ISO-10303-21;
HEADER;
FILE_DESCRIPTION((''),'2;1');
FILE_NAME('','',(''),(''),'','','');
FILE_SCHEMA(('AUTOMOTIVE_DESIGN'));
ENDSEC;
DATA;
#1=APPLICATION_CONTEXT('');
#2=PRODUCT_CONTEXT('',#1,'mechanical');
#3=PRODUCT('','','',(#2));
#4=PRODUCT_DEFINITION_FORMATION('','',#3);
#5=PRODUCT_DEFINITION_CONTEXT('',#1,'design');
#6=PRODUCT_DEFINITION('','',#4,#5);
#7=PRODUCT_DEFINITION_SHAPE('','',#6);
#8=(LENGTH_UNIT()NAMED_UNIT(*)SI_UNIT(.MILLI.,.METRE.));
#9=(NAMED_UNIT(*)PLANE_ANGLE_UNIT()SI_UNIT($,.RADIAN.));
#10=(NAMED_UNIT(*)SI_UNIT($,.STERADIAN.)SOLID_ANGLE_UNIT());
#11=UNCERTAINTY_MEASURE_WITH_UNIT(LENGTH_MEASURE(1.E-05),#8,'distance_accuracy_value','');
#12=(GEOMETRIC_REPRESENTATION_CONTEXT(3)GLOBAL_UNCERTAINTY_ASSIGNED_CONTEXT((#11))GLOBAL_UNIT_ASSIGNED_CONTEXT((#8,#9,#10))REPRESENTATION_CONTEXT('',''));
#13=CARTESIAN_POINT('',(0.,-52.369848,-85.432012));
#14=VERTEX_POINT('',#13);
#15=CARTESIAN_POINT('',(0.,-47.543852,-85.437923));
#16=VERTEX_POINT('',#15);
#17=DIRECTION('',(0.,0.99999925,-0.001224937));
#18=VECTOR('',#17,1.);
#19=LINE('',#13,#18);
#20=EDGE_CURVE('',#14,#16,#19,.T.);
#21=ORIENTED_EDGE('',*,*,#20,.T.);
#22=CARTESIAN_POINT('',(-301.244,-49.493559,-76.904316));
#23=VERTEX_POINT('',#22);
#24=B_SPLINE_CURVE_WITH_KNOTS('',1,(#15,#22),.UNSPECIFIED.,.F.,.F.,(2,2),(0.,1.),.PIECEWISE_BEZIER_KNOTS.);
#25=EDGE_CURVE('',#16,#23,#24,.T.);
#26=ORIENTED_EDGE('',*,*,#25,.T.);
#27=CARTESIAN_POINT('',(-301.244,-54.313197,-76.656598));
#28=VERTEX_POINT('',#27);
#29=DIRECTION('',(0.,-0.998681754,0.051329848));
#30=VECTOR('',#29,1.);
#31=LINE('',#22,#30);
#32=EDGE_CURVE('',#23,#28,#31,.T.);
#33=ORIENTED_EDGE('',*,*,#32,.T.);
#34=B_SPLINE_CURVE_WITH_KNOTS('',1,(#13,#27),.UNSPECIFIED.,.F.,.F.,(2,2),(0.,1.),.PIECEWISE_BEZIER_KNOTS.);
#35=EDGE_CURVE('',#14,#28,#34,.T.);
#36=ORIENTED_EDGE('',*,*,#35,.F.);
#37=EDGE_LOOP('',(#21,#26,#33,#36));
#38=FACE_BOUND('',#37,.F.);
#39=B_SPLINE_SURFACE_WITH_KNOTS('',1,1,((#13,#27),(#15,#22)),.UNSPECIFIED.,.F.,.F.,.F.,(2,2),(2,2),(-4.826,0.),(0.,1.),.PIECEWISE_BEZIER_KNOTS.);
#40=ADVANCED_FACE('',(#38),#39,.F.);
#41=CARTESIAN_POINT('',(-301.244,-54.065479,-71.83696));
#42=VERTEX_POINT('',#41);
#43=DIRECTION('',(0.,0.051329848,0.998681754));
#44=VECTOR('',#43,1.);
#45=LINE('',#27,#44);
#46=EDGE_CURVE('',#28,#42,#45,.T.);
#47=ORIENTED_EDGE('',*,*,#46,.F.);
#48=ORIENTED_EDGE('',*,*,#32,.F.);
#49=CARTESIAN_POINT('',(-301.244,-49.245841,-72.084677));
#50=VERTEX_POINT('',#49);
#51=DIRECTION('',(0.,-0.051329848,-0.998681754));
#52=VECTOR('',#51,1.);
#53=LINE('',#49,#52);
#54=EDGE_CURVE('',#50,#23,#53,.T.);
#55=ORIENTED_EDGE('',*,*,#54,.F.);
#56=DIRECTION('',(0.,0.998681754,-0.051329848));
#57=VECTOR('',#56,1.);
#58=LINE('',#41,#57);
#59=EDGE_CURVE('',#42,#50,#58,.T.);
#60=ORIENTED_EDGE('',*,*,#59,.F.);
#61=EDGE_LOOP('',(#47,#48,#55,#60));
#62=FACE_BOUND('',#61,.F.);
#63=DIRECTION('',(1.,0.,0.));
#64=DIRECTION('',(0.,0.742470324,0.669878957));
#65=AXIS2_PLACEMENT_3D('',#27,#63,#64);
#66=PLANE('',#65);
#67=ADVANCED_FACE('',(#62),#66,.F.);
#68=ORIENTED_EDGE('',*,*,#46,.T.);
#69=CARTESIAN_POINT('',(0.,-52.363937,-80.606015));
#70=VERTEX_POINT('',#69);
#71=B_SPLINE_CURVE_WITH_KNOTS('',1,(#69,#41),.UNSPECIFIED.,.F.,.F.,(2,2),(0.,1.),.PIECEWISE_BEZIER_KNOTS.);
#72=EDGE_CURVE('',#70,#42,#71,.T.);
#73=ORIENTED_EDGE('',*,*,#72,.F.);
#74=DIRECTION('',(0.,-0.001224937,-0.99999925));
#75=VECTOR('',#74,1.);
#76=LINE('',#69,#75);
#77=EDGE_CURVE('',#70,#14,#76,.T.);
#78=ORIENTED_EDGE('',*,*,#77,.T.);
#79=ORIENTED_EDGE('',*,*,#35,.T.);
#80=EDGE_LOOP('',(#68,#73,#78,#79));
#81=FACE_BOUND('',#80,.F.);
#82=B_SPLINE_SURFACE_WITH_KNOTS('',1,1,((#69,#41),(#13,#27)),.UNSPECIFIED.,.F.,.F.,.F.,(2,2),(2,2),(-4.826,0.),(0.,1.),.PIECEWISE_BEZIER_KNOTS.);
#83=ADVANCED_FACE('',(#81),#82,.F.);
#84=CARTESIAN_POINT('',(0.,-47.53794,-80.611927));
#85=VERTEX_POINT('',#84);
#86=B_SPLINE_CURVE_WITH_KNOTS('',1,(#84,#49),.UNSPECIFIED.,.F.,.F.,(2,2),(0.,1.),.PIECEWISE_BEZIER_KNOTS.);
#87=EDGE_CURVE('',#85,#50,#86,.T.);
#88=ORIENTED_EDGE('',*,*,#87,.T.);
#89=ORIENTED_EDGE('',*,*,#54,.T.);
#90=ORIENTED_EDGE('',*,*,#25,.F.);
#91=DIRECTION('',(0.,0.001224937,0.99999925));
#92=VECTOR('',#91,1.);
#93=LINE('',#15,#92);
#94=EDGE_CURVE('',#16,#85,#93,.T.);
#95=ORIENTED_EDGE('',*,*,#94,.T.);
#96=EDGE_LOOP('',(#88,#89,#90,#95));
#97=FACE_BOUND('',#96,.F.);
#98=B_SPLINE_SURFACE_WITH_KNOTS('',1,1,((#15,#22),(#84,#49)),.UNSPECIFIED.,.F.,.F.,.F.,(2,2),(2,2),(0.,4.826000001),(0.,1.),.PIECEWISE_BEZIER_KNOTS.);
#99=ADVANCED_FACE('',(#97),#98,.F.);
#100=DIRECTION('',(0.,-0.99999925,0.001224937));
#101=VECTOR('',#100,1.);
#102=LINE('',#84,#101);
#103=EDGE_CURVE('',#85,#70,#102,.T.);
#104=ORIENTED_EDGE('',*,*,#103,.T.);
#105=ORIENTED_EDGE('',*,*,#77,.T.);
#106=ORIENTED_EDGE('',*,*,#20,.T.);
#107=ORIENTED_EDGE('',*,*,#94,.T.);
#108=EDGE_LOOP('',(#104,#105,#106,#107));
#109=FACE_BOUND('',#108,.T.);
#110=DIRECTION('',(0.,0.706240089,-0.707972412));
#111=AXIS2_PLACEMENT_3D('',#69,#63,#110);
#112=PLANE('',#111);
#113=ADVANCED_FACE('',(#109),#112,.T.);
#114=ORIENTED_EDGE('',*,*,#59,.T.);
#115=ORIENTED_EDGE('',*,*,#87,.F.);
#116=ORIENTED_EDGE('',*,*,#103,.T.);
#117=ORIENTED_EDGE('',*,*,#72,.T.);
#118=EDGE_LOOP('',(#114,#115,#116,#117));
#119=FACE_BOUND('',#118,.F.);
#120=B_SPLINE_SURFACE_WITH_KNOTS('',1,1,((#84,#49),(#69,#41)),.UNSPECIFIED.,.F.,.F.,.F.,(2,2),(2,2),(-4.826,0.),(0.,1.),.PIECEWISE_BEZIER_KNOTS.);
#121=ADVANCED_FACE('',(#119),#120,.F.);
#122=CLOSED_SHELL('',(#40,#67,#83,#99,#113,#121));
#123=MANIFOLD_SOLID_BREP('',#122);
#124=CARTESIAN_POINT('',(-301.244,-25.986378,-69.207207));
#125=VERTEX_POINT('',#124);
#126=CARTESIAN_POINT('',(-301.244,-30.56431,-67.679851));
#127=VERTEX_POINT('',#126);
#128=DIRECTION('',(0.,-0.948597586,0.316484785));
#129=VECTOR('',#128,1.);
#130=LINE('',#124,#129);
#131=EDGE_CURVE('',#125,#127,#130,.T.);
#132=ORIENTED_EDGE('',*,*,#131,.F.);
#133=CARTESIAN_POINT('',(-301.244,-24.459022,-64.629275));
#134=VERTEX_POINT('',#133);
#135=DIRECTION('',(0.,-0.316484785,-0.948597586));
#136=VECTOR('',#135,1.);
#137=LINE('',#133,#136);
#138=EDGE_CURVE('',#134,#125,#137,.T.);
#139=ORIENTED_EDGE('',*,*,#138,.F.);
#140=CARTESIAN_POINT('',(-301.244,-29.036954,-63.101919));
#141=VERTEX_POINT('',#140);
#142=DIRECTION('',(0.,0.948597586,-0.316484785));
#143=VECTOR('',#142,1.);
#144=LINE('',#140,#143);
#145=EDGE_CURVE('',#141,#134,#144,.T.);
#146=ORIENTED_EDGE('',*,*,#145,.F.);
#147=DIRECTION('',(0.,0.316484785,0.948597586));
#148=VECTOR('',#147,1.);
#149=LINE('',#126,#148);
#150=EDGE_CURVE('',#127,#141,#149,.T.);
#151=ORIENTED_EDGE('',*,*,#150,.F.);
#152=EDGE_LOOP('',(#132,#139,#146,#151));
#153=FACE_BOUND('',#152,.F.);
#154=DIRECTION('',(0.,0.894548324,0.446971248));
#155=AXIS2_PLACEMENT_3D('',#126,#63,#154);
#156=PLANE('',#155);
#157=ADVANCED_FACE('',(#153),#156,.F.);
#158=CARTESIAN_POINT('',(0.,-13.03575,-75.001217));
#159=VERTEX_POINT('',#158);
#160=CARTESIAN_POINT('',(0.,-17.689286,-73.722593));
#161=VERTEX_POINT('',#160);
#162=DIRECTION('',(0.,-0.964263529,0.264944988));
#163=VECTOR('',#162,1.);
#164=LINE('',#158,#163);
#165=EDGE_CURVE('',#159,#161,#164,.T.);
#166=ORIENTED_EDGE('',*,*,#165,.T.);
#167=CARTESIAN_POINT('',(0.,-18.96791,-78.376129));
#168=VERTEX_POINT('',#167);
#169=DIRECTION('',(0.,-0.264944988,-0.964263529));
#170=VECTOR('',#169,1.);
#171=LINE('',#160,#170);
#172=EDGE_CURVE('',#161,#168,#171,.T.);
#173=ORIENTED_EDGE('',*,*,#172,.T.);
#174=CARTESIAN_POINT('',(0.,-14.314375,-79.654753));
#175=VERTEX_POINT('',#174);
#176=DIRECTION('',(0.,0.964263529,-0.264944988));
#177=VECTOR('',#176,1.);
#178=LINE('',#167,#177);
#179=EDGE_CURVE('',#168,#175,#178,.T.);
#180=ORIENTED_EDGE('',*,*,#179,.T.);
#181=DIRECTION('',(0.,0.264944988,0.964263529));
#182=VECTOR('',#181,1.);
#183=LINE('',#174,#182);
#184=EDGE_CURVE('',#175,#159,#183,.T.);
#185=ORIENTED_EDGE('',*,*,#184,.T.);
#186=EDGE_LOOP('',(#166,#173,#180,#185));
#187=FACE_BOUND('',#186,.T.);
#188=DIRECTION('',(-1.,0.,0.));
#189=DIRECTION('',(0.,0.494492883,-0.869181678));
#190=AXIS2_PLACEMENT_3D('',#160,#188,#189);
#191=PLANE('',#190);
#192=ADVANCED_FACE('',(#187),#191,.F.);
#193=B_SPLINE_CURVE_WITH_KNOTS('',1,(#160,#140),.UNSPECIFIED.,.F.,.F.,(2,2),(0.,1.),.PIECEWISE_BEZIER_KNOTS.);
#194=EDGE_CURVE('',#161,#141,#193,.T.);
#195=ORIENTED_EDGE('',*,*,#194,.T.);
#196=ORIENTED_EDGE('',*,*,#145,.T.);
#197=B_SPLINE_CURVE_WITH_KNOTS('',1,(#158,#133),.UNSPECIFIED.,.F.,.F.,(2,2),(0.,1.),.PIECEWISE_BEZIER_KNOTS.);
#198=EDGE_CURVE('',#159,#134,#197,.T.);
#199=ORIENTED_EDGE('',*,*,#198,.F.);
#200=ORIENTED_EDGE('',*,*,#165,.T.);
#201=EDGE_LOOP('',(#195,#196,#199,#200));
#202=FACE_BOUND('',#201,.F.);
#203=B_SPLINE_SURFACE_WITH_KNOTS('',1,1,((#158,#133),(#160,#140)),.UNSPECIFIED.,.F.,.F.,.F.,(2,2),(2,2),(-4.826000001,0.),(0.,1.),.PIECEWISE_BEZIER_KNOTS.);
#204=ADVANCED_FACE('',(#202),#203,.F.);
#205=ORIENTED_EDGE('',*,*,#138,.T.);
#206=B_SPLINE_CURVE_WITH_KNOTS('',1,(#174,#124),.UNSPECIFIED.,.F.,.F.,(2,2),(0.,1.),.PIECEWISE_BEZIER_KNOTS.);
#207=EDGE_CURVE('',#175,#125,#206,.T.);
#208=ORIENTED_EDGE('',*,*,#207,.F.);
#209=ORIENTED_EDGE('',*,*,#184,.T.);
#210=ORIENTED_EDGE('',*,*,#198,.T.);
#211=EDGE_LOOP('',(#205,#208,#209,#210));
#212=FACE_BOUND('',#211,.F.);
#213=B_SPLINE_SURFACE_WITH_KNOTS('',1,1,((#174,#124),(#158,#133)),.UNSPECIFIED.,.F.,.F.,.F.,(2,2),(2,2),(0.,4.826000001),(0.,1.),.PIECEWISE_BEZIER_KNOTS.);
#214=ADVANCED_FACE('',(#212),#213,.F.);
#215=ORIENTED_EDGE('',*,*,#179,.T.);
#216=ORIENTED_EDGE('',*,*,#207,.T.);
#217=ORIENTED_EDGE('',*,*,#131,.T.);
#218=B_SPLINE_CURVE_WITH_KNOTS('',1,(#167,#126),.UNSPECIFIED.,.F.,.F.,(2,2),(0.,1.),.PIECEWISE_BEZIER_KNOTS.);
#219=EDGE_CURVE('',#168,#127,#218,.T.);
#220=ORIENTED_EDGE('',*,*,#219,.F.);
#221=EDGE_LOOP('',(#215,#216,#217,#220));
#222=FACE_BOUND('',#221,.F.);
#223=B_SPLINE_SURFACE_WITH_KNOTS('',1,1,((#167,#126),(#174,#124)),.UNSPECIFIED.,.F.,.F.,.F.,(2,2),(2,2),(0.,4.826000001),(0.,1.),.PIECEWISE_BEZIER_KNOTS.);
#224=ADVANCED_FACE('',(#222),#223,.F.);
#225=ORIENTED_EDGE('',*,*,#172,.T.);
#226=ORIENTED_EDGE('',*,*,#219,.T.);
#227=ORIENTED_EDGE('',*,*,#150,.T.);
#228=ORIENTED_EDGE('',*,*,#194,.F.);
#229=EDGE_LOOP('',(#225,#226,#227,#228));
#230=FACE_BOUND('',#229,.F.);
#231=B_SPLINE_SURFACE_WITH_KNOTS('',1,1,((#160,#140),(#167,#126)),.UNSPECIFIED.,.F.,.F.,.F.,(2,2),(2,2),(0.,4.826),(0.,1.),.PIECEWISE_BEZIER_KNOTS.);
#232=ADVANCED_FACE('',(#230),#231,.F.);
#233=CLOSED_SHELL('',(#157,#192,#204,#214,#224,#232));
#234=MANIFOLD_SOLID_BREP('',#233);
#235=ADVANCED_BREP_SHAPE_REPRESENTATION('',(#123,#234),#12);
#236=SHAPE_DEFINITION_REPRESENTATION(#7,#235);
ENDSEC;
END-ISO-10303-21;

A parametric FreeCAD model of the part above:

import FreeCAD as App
import Part
import Sketcher
Q = App.Units.Quantity


def add_polygon(sketch, points):
    """Adds a closed chain of lines whose ends are joined by coincident constraints."""
    first, n = sketch.GeometryCount, len(points)
    for a, b in zip(points, points[1:] + points[:1]):
        sketch.addGeometry(Part.LineSegment(App.Vector(*a, 0), App.Vector(*b, 0)), False)
    for i in range(n):
        sketch.addConstraint(Sketcher.Constraint("Coincident", first + i, 2, first + (i + 1) % n, 1))

doc = App.newDocument("Part")
body = doc.addObject("PartDesign::Body", "Body")

# Sketch on YZ plane
sketch1 = doc.addObject("Sketcher::SketchObject", "Sketch")
body.addObject(sketch1)
sketch1.AttachmentSupport = (doc.YZ_Plane, [""])
sketch1.MapMode = "FlatFace"
add_polygon(sketch1, [(-17.7, -73.7), (-19, -78.4), (-14.3, -79.7), (-13, -75)])  # lines 0-3
sketch1.addConstraint([
    Sketcher.Constraint("Perpendicular", 0, 1),
    Sketcher.Constraint("Perpendicular", 1, 2),
    Sketcher.Constraint("Perpendicular", 2, 3),
    Sketcher.Constraint("Equal", 0, 1),
    Sketcher.Constraint("Distance", 0, Q("0.19 in")),
    Sketcher.Constraint("DistanceX", 0, 2, -1, 1, Q("18.96791 mm")),
    Sketcher.Constraint("DistanceY", 0, 2, -1, 1, Q("78.376129 mm")),
    Sketcher.Constraint("DistanceX", 2, 2, -1, 1, Q("13.03575 mm")),
])

# Sketch on YZ plane
sketch2 = doc.addObject("Sketcher::SketchObject", "Sketch001")
body.addObject(sketch2)
sketch2.AttachmentSupport = (doc.YZ_Plane, [""])
sketch2.MapMode = "FlatFace"
sketch2.AttachmentOffset = App.Placement(App.Vector(0, 0, -11.86 * 25.4), App.Rotation())
add_polygon(sketch2, [(-29, -63.1), (-30.6, -67.7), (-26, -69.2), (-24.5, -64.6)])  # lines 0-3
sketch2.addConstraint([
    Sketcher.Constraint("Perpendicular", 0, 1),
    Sketcher.Constraint("Perpendicular", 1, 2),
    Sketcher.Constraint("Perpendicular", 2, 3),
    Sketcher.Constraint("Equal", 0, 1),
    Sketcher.Constraint("Distance", 0, Q("0.19 in")),
    Sketcher.Constraint("DistanceX", 0, 2, -1, 1, Q("30.56431 mm")),
    Sketcher.Constraint("DistanceY", 0, 2, -1, 1, Q("67.679851 mm")),
    Sketcher.Constraint("DistanceY", 3, 2, -1, 1, Q("63.101919 mm")),
])

additiveloft = doc.addObject("PartDesign::AdditiveLoft", "AdditiveLoft")
body.addObject(additiveloft)
additiveloft.Profile = sketch1
additiveloft.Sections = [sketch2]
body2 = doc.addObject("PartDesign::Body", "Body001")

# Sketch on YZ plane
sketch3 = doc.addObject("Sketcher::SketchObject", "Sketch002")
body2.addObject(sketch3)
sketch3.AttachmentSupport = (doc.getObject("YZ_Plane001"), [""])
sketch3.MapMode = "FlatFace"
add_polygon(sketch3, [(-52.4, -80.6), (-52.4, -85.4), (-47.5, -85.4), (-47.5, -80.6)])  # lines 0-3
sketch3.addConstraint([
    Sketcher.Constraint("Perpendicular", 0, 1),
    Sketcher.Constraint("Perpendicular", 1, 2),
    Sketcher.Constraint("Perpendicular", 2, 3),
    Sketcher.Constraint("Equal", 0, 1),
    Sketcher.Constraint("Distance", 0, Q("0.19 in")),
    Sketcher.Constraint("DistanceX", 0, 2, -1, 1, Q("52.369848 mm")),
    Sketcher.Constraint("DistanceY", 0, 2, -1, 1, Q("85.432012 mm")),
    Sketcher.Constraint("DistanceX", 2, 2, -1, 1, Q("47.53794 mm")),
])

# Sketch on YZ plane
sketch4 = doc.addObject("Sketcher::SketchObject", "Sketch003")
body2.addObject(sketch4)
sketch4.AttachmentSupport = (doc.getObject("YZ_Plane001"), [""])
sketch4.MapMode = "FlatFace"
sketch4.AttachmentOffset = App.Placement(App.Vector(0, 0, -11.86 * 25.4), App.Rotation())
add_polygon(sketch4, [(-54.1, -71.8), (-54.3, -76.7), (-49.5, -76.9), (-49.2, -72.1)])  # lines 0-3
sketch4.addConstraint([
    Sketcher.Constraint("Perpendicular", 0, 1),
    Sketcher.Constraint("Perpendicular", 1, 2),
    Sketcher.Constraint("Perpendicular", 2, 3),
    Sketcher.Constraint("Equal", 0, 1),
    Sketcher.Constraint("Distance", 0, Q("0.19 in")),
    Sketcher.Constraint("DistanceX", 1, 2, -1, 1, Q("49.493559 mm")),
    Sketcher.Constraint("DistanceX", 2, 2, -1, 1, Q("49.245841 mm")),
    Sketcher.Constraint("DistanceY", 3, 2, -1, 1, Q("71.83696 mm")),
])

additiveloft2 = doc.addObject("PartDesign::AdditiveLoft", "AdditiveLoft001")
body2.addObject(additiveloft2)
additiveloft2.Profile = sketch3
additiveloft2.Sections = [sketch4]

doc.recompute()
